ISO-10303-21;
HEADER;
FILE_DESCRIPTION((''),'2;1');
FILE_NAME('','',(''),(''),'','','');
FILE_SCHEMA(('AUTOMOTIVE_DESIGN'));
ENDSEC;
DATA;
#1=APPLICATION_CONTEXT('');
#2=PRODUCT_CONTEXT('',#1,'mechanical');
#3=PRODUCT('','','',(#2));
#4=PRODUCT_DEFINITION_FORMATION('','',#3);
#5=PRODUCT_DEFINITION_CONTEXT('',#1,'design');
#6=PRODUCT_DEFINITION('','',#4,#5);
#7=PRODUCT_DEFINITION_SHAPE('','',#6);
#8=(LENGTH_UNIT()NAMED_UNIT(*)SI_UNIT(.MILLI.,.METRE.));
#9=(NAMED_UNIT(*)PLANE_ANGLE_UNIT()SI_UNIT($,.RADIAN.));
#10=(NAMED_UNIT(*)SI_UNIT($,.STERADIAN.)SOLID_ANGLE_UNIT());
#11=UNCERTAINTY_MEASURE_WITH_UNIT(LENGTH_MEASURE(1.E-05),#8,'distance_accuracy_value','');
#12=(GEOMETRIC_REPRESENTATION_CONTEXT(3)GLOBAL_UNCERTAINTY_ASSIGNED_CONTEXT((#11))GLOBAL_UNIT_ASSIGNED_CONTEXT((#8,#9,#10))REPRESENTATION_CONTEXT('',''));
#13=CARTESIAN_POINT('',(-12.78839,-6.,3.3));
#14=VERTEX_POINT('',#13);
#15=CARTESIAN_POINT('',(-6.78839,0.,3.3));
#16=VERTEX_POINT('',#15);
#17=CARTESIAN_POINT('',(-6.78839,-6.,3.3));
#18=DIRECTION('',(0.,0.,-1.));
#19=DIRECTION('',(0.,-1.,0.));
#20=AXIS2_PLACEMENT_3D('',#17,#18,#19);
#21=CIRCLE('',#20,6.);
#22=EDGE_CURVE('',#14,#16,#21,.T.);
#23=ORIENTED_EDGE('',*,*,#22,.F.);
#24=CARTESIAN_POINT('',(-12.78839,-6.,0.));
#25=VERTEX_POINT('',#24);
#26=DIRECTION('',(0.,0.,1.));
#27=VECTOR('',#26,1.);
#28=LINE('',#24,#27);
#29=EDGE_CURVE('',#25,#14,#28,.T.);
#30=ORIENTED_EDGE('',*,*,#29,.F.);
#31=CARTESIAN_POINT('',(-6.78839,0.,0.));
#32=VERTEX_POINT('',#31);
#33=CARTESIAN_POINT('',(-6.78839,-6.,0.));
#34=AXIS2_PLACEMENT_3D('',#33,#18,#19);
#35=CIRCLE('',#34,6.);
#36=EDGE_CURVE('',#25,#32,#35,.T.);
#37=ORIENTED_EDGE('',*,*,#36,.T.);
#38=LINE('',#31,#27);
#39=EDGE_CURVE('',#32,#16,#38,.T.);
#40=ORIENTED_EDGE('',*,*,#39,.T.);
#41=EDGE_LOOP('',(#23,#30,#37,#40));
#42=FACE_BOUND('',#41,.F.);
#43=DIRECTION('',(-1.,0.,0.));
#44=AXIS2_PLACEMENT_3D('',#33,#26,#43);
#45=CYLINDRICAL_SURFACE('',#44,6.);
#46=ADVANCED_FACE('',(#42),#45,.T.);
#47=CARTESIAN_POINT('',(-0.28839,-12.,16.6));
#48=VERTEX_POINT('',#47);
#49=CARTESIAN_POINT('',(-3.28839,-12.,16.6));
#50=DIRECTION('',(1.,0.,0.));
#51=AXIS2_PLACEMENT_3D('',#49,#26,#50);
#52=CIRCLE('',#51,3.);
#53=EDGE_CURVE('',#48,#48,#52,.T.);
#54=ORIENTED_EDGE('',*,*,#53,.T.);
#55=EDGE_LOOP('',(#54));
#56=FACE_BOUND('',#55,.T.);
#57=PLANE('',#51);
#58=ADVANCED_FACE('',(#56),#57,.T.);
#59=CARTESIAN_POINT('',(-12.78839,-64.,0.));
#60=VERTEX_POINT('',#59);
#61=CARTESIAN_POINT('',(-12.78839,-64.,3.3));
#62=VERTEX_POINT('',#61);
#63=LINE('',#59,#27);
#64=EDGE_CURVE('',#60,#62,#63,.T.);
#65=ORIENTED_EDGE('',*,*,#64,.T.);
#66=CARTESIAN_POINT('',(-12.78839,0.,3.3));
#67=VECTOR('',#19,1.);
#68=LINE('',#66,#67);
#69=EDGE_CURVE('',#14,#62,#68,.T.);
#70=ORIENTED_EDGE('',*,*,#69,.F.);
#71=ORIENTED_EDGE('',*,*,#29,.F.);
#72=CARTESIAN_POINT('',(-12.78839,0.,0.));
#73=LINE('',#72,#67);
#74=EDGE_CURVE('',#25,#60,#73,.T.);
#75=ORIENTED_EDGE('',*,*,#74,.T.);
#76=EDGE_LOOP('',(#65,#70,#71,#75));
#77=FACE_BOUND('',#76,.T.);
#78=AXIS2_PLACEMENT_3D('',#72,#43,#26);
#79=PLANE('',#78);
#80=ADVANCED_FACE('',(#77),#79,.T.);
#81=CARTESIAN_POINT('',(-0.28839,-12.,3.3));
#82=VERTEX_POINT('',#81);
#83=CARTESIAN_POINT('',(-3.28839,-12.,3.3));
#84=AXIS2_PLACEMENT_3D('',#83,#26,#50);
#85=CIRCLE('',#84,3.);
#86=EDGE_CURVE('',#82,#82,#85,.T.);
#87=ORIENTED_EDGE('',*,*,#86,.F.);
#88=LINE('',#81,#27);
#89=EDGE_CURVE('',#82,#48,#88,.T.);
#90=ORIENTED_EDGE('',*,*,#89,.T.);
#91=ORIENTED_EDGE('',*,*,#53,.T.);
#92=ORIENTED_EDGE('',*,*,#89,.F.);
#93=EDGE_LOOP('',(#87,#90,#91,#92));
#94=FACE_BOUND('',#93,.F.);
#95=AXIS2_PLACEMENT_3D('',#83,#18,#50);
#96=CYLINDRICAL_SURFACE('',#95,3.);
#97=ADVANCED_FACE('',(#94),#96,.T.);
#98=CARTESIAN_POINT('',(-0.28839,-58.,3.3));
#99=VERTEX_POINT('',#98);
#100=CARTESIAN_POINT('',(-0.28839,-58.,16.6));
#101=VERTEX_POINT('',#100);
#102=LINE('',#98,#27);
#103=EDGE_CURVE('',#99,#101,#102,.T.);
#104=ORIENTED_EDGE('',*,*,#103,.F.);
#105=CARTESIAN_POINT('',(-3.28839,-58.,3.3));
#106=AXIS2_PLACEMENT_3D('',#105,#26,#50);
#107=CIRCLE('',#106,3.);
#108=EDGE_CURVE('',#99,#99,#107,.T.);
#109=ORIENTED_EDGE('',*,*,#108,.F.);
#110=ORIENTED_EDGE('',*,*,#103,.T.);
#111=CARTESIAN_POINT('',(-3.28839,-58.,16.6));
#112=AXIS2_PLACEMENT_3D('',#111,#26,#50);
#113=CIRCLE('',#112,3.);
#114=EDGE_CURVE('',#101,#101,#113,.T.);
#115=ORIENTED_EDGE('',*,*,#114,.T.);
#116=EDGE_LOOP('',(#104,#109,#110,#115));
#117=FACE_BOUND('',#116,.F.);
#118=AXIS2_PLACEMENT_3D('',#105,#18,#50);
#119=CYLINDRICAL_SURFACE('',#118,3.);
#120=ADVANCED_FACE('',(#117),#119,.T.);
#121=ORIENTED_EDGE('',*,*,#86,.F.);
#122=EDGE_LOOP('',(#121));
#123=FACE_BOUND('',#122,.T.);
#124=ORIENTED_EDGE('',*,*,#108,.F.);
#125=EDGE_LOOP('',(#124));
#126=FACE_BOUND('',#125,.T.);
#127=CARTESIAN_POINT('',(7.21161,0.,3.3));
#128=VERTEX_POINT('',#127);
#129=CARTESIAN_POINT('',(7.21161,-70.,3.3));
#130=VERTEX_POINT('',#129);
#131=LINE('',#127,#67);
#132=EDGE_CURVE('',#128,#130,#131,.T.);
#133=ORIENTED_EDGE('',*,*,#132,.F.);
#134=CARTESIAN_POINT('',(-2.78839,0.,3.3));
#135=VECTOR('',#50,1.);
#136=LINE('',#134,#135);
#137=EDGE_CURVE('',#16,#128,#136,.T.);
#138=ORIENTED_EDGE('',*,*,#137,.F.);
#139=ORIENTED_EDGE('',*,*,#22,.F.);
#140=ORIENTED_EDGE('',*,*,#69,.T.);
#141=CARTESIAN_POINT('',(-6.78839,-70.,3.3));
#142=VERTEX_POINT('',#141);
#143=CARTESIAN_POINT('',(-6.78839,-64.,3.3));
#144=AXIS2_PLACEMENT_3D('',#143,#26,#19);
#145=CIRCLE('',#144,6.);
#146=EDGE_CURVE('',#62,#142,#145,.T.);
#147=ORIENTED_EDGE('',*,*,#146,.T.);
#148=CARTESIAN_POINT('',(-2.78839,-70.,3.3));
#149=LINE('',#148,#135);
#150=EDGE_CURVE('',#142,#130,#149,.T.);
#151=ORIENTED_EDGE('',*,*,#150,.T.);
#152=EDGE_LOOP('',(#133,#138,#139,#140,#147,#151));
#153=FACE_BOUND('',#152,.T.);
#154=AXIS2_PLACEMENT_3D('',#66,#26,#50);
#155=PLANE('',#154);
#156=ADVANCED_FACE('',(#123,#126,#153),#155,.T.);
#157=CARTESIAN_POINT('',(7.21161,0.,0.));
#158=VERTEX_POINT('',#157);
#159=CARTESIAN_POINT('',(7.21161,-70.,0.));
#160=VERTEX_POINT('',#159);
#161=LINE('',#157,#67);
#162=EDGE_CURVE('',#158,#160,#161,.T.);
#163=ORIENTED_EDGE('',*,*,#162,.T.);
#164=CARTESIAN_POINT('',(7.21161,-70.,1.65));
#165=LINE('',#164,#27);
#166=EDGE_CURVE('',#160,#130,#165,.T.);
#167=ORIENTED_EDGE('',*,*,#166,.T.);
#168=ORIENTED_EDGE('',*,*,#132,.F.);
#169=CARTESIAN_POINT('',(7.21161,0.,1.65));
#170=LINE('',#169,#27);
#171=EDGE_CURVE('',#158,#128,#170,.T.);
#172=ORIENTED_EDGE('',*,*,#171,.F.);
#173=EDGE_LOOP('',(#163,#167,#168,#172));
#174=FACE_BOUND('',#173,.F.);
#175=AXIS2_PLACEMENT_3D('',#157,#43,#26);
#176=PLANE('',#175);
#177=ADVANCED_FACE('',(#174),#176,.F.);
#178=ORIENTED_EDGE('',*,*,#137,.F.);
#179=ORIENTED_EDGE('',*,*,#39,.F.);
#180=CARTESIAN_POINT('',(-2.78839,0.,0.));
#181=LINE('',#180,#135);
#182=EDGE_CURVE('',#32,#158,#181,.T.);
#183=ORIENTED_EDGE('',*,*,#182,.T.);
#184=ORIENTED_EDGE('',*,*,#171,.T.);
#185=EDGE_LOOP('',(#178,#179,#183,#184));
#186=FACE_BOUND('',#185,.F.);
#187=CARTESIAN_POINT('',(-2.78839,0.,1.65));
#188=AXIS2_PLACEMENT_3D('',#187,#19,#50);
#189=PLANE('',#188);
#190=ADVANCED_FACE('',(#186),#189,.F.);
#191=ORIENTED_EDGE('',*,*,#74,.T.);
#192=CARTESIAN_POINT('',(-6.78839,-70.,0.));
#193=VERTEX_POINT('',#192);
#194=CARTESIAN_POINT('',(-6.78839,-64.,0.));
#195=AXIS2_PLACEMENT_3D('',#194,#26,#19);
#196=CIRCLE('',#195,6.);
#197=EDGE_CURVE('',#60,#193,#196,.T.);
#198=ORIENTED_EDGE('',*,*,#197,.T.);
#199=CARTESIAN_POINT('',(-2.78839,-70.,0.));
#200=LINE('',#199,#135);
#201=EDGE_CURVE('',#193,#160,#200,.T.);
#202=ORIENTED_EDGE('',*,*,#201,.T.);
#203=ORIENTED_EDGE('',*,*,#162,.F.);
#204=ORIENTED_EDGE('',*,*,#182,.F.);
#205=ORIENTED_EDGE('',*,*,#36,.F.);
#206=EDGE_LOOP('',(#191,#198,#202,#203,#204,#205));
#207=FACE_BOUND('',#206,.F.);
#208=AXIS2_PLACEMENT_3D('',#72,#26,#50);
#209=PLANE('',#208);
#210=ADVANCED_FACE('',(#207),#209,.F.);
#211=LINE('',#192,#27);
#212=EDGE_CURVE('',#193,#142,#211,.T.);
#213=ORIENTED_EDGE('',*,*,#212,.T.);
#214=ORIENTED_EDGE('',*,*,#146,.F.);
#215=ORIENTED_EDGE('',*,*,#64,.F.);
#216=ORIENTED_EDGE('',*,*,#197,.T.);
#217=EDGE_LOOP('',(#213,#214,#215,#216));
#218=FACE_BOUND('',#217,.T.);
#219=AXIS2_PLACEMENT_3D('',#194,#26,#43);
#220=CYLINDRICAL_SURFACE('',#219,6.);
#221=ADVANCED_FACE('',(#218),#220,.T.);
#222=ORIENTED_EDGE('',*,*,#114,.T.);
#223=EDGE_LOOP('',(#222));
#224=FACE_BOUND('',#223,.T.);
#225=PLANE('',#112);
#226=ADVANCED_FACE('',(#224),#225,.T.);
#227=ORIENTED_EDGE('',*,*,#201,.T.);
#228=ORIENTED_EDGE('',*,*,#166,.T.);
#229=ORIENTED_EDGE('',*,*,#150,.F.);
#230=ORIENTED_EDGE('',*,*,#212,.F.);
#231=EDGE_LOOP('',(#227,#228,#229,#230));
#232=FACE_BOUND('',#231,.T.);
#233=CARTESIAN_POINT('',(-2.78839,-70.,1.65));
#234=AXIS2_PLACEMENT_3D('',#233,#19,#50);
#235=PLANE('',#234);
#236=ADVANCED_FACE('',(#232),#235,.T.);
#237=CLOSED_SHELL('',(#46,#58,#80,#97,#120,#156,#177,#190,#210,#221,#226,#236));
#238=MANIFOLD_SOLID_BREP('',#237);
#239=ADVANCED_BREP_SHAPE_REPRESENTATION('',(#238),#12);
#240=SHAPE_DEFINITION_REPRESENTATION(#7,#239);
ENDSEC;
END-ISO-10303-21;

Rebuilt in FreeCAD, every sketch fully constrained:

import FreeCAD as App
import Part
import Sketcher

V = App.Vector
Q = App.Units.Quantity


def edges_at(feature, points):
    """Names of the edges that pass closest to the given points."""
    edges = feature.Shape.Edges
    near = lambda p: min(range(len(edges)), key=lambda i: edges[i].distToShape(Part.Vertex(*p))[0])
    return sorted({f"Edge{near(p) + 1}" for p in points})

doc = App.newDocument("Part")
body = doc.addObject("PartDesign::Body", "Body")

sketch1 = body.newObject("Sketcher::SketchObject", "Sketch")
sketch1.AttachmentSupport = (doc.getObject("XZ_Plane"), [""])
sketch1.MapMode = "FlatFace"
sketch1.addGeometry([
    Part.LineSegment(V(-12.8, 3.3, 0), V(-12.8, 0, 0)),
    Part.LineSegment(V(-12.8, 0, 0), V(7.2, 0, 0)),
    Part.LineSegment(V(7.2, 0, 0), V(7.2, 3.3, 0)),
    Part.LineSegment(V(7.2, 3.3, 0), V(-12.8, 3.3, 0)),
], False)
sketch1.addConstraint([
    Sketcher.Constraint("Coincident", 0, 2, 1, 1),
    Sketcher.Constraint("Coincident", 1, 2, 2, 1),
    Sketcher.Constraint("Coincident", 2, 2, 3, 1),
    Sketcher.Constraint("Coincident", 3, 2, 0, 1),
    Sketcher.Constraint("Vertical", 0),
    Sketcher.Constraint("Horizontal", 1),
    Sketcher.Constraint("Vertical", 2),
    Sketcher.Constraint("Horizontal", 3),
    Sketcher.Constraint("PointOnObject", 0, 2, -1),
    Sketcher.Constraint("DistanceX", 1, 1, 1, 2, Q("20 mm")),
    Sketcher.Constraint("DistanceY", 0, 2, 0, 1, Q("3.3 mm")),
    Sketcher.Constraint("DistanceX", 0, 2, -1, 1, Q("12.78839 mm")),
])
pad1 = body.newObject("PartDesign::Pad", "Pad")
pad1.Profile = sketch1
pad1.Length = 70

sketch2 = body.newObject("Sketcher::SketchObject", "Sketch001")
sketch2.AttachmentSupport = (doc.getObject("XY_Plane"), [""])
sketch2.MapMode = "FlatFace"
sketch2.AttachmentOffset = App.Placement(V(0, 0, 3.3), App.Rotation())
sketch2.addGeometry([
    Part.Circle(V(-3.3, -12, 0), V(0, 0, 1), 3),
    Part.Circle(V(-3.3, -58, 0), V(0, 0, 1), 3),
], False)
sketch2.addConstraint([
    Sketcher.Constraint("Equal", 0, 1),
    Sketcher.Constraint("Vertical", 0, 3, 1, 3),
    Sketcher.Constraint("Diameter", 0, Q("6 mm")),
    Sketcher.Constraint("DistanceY", 0, 3, -1, 1, Q("12 mm")),
    Sketcher.Constraint("DistanceY", 1, 3, -1, 1, Q("58 mm")),
    Sketcher.Constraint("DistanceX", 0, 3, -1, 1, Q("3.28839 mm")),
])
pad2 = body.newObject("PartDesign::Pad", "Pad001")
pad2.Profile = sketch2
pad2.Length = 13.3
doc.recompute()

fillet = body.newObject("PartDesign::Fillet", "Fillet")
fillet.Base = (pad2, edges_at(pad2, [(-12.788, 0, 1.65), (-12.788, -70, 1.65)]))
fillet.Radius = 6

doc.recompute()
